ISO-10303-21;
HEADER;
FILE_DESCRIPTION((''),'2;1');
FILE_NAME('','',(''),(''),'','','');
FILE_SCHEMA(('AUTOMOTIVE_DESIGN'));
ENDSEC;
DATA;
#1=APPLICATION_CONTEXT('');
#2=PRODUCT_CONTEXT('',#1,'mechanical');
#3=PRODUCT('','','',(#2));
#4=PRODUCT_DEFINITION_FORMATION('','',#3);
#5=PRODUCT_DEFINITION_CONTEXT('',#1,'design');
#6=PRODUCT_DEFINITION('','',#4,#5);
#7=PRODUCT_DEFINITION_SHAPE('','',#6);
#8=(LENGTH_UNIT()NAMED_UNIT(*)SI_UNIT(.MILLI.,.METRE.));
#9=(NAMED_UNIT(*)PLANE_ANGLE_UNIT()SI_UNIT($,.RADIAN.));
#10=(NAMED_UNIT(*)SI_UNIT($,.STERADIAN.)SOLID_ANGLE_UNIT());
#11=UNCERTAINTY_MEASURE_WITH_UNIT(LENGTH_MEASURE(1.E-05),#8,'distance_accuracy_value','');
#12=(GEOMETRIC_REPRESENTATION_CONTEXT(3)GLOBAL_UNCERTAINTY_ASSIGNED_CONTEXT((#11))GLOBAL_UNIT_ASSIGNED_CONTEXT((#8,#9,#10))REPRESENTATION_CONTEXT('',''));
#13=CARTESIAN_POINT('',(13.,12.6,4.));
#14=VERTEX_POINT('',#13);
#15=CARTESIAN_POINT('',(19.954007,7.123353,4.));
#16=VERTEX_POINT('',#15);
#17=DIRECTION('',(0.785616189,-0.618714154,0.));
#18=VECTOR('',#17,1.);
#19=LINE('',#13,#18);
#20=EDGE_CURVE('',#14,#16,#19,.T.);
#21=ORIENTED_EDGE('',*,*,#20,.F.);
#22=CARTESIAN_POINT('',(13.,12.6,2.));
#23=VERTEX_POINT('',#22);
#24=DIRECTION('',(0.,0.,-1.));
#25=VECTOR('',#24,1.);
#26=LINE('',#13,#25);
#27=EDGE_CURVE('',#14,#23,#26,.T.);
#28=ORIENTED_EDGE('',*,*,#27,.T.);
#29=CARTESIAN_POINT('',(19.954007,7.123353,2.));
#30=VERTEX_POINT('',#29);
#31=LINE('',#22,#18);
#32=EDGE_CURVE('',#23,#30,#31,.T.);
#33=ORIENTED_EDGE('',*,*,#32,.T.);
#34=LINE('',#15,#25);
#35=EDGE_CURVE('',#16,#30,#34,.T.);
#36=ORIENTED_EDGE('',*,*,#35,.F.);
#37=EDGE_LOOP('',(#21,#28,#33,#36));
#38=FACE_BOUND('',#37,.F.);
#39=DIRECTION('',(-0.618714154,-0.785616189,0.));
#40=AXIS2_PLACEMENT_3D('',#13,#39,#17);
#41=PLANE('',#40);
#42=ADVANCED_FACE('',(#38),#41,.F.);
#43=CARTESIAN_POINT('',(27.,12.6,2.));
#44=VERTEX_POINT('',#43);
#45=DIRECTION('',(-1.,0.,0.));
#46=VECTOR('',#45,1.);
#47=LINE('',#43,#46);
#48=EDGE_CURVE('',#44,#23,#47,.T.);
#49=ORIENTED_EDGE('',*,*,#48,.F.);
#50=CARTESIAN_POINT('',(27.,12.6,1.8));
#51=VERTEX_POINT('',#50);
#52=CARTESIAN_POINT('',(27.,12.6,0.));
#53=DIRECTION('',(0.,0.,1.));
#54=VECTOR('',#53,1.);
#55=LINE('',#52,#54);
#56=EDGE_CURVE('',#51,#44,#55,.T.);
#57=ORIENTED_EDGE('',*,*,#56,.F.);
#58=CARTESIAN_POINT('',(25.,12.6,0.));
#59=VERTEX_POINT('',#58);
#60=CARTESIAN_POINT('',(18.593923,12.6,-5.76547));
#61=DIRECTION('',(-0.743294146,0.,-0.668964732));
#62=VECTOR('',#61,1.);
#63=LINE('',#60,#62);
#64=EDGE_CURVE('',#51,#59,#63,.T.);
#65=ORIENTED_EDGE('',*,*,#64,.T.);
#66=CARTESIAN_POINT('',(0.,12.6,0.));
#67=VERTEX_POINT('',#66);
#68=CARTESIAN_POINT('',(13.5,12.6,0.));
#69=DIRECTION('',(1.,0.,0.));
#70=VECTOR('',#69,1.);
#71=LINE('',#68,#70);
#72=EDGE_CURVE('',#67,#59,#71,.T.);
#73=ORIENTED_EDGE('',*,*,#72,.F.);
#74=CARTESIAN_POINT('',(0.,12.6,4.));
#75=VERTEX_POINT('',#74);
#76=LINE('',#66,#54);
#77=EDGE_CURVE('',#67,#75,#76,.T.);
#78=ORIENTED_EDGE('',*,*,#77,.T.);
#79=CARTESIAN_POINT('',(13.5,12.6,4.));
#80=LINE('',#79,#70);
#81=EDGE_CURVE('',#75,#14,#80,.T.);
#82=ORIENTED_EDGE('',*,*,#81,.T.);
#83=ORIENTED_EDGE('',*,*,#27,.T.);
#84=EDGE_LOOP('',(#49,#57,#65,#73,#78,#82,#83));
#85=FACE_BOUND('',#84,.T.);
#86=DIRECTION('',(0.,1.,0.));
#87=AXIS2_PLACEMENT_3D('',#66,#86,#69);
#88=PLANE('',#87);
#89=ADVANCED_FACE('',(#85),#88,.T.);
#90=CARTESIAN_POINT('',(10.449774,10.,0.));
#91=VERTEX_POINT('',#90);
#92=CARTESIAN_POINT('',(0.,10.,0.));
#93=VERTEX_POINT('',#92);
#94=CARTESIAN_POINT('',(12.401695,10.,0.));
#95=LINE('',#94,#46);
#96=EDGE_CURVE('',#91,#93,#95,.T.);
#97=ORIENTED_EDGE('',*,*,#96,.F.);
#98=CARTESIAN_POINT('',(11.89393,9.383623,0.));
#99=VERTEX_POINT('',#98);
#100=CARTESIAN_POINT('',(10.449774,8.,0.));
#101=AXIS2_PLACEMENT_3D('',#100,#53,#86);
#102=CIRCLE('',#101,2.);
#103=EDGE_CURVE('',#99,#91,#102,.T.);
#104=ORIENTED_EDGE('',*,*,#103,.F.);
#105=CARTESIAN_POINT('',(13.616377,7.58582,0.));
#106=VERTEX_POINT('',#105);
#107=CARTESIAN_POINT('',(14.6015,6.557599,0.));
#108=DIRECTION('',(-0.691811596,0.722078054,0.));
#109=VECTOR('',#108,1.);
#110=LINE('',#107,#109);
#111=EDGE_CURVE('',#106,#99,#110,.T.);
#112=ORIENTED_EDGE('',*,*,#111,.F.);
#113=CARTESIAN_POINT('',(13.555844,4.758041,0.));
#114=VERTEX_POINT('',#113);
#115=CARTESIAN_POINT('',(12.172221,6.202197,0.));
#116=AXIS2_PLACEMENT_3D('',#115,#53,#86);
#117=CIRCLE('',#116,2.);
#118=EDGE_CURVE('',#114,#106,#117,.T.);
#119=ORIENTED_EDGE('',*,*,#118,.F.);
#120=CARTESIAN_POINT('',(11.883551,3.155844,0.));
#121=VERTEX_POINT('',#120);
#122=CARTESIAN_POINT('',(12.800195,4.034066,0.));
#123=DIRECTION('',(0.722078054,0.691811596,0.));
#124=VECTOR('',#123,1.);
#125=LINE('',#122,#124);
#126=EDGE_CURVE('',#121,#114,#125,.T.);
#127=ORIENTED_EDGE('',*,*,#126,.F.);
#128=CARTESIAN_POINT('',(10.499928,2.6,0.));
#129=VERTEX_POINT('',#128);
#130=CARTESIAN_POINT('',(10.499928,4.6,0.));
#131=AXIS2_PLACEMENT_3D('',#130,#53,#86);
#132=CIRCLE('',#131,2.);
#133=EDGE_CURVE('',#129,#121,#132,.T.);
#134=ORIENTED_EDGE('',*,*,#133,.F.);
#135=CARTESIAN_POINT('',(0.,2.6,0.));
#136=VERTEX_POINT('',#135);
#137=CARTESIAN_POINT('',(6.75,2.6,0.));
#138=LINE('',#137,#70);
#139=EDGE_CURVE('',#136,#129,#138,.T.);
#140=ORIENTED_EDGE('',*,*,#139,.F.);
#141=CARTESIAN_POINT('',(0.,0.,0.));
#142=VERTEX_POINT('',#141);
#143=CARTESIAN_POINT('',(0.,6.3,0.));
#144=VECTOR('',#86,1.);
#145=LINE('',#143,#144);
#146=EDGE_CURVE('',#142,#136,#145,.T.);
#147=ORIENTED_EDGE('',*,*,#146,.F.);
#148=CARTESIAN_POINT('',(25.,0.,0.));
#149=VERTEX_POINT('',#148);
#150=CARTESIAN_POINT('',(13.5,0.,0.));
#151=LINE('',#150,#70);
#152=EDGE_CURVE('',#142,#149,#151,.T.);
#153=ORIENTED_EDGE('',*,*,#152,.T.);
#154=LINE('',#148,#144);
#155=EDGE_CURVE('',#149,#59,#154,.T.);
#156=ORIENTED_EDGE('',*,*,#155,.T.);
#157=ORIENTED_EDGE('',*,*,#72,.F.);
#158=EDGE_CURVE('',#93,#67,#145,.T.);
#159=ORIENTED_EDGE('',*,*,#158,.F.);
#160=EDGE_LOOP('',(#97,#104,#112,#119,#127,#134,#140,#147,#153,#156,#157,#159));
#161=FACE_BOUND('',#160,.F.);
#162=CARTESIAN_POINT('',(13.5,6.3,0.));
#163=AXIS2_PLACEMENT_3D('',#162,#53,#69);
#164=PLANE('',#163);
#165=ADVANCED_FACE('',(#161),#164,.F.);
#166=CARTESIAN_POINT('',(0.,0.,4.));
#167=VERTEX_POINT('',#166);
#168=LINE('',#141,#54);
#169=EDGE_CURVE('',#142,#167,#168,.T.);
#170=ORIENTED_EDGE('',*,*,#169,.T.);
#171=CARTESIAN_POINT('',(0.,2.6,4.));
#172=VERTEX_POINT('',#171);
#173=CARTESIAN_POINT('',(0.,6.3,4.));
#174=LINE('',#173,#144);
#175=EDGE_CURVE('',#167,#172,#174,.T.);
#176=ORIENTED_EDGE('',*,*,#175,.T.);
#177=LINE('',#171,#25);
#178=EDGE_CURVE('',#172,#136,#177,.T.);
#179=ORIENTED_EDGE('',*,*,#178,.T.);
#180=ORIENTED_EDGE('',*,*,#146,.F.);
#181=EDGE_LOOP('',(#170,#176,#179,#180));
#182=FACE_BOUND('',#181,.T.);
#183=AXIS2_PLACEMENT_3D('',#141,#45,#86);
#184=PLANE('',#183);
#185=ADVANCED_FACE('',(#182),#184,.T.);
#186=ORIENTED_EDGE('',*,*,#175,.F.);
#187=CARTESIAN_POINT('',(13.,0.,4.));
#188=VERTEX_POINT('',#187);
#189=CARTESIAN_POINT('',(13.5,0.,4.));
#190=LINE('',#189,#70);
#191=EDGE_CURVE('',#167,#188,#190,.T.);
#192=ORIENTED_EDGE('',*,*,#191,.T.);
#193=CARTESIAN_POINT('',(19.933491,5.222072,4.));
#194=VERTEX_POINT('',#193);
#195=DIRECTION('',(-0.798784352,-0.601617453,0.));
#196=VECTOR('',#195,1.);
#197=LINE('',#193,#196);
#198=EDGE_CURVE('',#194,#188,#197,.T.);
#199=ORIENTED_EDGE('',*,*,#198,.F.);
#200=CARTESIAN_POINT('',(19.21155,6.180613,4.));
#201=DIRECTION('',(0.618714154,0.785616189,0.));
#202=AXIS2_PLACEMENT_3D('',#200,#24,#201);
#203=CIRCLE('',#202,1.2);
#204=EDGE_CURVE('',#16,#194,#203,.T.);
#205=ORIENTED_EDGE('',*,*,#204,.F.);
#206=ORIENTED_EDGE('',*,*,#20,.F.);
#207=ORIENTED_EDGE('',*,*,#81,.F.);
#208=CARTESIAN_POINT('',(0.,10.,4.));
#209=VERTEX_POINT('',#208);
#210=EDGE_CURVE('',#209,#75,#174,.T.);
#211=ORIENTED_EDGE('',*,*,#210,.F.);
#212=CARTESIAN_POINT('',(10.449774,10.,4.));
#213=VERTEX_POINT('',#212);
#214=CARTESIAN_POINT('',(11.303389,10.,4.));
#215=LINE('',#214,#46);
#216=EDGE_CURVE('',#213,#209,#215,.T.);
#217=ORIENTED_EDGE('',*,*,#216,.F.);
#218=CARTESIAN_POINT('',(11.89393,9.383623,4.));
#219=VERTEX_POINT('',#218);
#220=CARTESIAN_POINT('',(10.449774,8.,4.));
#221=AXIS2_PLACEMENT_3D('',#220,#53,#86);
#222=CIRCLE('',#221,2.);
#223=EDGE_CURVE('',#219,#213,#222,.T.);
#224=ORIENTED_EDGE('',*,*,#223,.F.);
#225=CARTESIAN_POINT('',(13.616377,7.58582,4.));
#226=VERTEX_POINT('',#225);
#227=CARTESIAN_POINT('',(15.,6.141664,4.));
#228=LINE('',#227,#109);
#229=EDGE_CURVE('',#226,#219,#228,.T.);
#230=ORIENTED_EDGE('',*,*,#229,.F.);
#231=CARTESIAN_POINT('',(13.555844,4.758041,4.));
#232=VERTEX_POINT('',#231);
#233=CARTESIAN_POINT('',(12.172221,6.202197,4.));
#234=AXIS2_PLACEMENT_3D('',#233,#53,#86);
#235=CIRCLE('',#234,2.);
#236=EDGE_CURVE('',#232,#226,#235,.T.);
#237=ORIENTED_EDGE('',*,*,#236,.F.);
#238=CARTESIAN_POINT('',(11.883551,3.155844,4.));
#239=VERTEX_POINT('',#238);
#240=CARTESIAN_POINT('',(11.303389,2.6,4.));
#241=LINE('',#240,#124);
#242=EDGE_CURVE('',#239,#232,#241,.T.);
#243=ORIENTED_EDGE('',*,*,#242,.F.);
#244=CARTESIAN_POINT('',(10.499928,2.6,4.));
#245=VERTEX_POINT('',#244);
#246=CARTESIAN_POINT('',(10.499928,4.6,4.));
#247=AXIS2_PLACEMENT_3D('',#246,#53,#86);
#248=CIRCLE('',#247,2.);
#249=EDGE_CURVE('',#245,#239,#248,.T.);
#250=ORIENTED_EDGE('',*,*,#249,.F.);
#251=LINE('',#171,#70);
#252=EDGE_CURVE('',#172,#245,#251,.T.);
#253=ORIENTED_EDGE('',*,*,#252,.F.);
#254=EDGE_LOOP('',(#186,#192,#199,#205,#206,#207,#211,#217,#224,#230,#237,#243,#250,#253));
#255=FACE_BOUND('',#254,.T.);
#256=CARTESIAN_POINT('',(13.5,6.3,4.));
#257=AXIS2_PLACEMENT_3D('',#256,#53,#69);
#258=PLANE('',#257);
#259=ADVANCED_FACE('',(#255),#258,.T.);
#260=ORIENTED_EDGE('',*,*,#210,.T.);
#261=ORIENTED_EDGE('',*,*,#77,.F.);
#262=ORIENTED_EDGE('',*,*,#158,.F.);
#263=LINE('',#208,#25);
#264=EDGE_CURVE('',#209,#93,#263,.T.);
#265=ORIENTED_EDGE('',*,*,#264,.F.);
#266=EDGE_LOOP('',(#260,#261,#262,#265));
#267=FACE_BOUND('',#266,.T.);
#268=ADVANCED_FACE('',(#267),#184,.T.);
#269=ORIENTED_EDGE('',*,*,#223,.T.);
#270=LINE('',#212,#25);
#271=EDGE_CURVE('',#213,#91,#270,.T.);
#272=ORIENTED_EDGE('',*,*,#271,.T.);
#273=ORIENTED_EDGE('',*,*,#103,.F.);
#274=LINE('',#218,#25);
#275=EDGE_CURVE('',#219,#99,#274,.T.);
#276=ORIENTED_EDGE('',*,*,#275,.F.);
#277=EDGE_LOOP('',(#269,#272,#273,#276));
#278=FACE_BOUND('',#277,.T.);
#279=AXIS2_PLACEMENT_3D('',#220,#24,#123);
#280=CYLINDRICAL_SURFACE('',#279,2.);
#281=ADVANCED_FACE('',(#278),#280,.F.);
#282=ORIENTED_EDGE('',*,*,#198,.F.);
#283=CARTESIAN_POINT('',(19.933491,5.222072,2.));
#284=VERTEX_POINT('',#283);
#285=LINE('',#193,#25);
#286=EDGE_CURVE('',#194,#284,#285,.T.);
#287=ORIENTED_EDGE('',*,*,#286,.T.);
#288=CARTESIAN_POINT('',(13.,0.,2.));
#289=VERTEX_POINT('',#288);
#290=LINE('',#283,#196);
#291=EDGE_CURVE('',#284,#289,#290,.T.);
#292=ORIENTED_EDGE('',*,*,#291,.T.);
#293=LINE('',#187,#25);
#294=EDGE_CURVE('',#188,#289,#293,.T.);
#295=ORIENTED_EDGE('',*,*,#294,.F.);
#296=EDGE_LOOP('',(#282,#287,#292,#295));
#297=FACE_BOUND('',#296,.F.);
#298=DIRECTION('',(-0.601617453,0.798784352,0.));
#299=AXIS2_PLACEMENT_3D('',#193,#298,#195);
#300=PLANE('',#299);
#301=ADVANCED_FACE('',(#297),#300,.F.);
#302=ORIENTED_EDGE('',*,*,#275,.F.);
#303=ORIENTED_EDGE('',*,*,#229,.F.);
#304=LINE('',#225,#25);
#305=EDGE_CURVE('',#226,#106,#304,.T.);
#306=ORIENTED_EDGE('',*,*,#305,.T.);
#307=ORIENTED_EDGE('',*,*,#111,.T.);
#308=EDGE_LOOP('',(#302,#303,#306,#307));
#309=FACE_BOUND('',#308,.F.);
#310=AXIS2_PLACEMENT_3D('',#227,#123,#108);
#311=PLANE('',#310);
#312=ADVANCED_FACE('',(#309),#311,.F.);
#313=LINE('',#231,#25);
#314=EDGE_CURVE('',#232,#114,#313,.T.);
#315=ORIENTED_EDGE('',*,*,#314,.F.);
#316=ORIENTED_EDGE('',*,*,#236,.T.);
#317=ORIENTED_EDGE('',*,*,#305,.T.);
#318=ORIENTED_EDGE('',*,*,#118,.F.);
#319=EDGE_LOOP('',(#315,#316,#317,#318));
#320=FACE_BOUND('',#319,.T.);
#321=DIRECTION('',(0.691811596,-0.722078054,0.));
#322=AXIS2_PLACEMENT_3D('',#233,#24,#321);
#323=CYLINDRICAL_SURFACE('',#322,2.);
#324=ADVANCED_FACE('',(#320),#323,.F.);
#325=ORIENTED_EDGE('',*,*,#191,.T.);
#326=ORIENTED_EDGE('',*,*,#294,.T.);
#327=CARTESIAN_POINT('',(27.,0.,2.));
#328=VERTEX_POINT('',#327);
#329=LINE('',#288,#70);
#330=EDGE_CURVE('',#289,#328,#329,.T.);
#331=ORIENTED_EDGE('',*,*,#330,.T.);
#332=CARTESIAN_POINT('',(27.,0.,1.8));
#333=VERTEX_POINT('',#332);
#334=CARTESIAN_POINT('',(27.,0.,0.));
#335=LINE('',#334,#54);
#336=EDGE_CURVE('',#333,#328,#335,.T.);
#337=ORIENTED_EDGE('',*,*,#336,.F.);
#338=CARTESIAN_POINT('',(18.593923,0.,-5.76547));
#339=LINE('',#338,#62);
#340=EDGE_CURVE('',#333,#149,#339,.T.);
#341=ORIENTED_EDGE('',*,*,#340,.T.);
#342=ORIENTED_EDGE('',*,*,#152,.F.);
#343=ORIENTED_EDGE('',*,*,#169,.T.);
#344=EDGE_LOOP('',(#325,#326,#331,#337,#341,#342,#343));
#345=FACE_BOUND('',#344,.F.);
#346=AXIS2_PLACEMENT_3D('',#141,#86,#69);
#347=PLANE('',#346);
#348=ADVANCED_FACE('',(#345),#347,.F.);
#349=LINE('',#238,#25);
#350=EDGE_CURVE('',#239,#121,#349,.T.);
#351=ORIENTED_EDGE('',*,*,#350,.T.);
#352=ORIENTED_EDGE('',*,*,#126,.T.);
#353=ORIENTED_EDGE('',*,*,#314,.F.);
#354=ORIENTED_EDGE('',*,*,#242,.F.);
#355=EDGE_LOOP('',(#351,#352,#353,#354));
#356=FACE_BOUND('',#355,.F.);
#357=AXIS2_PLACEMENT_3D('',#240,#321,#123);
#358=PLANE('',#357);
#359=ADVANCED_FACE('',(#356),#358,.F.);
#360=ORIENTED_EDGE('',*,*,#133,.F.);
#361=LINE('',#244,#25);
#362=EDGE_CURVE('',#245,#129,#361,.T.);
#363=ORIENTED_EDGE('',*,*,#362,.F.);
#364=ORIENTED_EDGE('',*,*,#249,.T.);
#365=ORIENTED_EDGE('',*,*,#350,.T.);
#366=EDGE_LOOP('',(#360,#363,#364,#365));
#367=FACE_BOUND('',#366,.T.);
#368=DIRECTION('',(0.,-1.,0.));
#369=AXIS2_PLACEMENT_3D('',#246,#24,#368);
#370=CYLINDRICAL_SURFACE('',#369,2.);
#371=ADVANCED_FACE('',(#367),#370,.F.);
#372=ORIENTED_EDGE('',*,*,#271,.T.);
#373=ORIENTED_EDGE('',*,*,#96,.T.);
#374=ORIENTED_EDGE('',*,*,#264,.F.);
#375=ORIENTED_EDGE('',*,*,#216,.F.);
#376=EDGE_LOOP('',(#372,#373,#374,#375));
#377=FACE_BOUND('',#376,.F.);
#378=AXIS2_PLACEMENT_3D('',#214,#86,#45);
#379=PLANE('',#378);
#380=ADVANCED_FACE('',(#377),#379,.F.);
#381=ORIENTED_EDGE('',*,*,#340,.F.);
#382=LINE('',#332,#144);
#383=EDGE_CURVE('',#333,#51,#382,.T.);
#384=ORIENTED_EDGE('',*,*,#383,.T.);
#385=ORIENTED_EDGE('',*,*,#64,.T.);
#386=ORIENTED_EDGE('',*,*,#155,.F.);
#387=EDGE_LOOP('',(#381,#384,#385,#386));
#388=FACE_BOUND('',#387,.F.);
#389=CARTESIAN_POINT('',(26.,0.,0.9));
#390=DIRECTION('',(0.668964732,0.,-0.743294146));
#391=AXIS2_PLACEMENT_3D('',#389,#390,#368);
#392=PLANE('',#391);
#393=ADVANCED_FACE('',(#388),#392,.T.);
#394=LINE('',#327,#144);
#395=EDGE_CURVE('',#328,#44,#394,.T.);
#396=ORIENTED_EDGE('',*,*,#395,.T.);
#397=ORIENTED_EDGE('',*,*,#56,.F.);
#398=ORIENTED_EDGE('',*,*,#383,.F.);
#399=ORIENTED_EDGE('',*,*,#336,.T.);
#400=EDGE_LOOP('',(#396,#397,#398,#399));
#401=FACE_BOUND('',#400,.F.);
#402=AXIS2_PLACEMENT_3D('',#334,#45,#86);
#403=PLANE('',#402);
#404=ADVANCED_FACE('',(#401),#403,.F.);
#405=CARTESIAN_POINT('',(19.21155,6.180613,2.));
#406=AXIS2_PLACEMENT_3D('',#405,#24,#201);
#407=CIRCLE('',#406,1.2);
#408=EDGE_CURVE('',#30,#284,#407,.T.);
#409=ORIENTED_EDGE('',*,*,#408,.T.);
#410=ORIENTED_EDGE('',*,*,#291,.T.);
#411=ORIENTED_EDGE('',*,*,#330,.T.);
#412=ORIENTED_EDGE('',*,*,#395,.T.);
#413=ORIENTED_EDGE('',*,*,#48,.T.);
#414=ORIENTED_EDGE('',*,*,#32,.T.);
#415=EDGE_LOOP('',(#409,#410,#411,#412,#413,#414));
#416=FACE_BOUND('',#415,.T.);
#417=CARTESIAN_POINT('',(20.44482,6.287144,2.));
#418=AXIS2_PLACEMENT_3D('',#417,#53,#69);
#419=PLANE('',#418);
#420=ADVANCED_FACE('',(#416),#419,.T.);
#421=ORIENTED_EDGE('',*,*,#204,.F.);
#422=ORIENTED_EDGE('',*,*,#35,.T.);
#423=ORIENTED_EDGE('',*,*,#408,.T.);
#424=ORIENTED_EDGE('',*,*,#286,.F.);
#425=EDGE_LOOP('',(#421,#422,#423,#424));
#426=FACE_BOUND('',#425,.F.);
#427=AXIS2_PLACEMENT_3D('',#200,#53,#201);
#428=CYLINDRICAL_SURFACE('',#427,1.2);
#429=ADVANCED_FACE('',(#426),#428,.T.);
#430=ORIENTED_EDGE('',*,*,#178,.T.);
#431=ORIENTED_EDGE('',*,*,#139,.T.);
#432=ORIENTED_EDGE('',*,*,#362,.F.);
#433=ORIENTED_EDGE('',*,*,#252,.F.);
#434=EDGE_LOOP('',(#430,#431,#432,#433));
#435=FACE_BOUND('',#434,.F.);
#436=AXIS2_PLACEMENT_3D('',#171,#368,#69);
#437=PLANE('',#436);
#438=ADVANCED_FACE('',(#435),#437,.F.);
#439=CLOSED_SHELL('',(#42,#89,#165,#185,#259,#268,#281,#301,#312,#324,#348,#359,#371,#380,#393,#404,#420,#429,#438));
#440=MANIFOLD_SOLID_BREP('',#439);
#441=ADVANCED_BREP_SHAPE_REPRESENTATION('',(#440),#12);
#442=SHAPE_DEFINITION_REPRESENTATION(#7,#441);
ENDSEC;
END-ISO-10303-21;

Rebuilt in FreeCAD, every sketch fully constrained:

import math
import FreeCAD as App
import Part
import Sketcher

V = App.Vector


def edges_at(feature, points):
    """Names of the edges that pass closest to the given points."""
    edges = feature.Shape.Edges
    near = lambda p: min(range(len(edges)), key=lambda i: edges[i].distToShape(Part.Vertex(*p))[0])
    return sorted({f"Edge{near(p) + 1}" for p in points})


def add_polygon(sketch, points):
    """Adds a closed chain of lines whose ends are joined by coincident constraints."""
    first, n = sketch.GeometryCount, len(points)
    for a, b in zip(points, points[1:] + points[:1]):
        sketch.addGeometry(Part.LineSegment(App.Vector(*a, 0), App.Vector(*b, 0)), False)
    for i in range(n):
        sketch.addConstraint(Sketcher.Constraint("Coincident", first + i, 2, first + (i + 1) % n, 1))

doc = App.newDocument("Part")
body = doc.addObject("PartDesign::Body", "Body")

sketch1 = body.newObject("Sketcher::SketchObject", "Sketch")
sketch1.AttachmentSupport = (doc.getObject("XY_Plane"), [""])
sketch1.MapMode = "FlatFace"
add_polygon(sketch1, [(0, 13), (0, 0), (27, 0), (27, 13)])
sketch1.addConstraint(Sketcher.Constraint("Vertical", 0))
sketch1.addConstraint(Sketcher.Constraint("Horizontal", 1))
sketch1.addConstraint(Sketcher.Constraint("Vertical", 2))
sketch1.addConstraint(Sketcher.Constraint("Horizontal", 3))
sketch1.addConstraint(Sketcher.Constraint("Coincident", 0, 2, -1, 1))
sketch1.addConstraint(Sketcher.Constraint("DistanceX", 1, 1, 1, 2, 27.0))
sketch1.addConstraint(Sketcher.Constraint("DistanceY", 0, 2, 0, 1, 12.6))
pad1 = body.newObject("PartDesign::Pad", "Pad")
pad1.Profile = sketch1
pad1.Length = 4

sketch2 = body.newObject("Sketcher::SketchObject", "Sketch001")
sketch2.AttachmentSupport = (doc.getObject("XY_Plane"), [""])
sketch2.MapMode = "FlatFace"
sketch2.AttachmentOffset = App.Placement(V(0, 0, 4), App.Rotation())
add_polygon(sketch2, [(11, 10), (0, 10), (0, 3), (11, 3), (15, 6)])
sketch2.addConstraint(Sketcher.Constraint("Horizontal", 0))
sketch2.addConstraint(Sketcher.Constraint("Vertical", 1))
sketch2.addConstraint(Sketcher.Constraint("Horizontal", 2))
sketch2.addConstraint(Sketcher.Constraint("PointOnObject", 0, 2, -2))
sketch2.addConstraint(Sketcher.Constraint("Perpendicular", 3, 4))
sketch2.addConstraint(Sketcher.Constraint("Vertical", 2, 2, 4, 2))
sketch2.addConstraint(Sketcher.Constraint("DistanceY", 1, 2, 1, 1, 7.4))
sketch2.addConstraint(Sketcher.Constraint("DistanceY", -1, 1, 0, 2, 10.0))
sketch2.addConstraint(Sketcher.Constraint("DistanceX", -1, 1, 3, 2, 15.0))
sketch2.addConstraint(Sketcher.Constraint("DistanceX", 0, 2, 0, 1, 11.303389))
pocket1 = body.newObject("PartDesign::Pocket", "Pocket")
pocket1.Profile = sketch2
pocket1.Length = 25
doc.recompute()

fillet = body.newObject("PartDesign::Fillet", "Fillet")
fillet.Base = (pocket1, edges_at(pocket1, [(11.303, 10, 2), (15, 6.142, 2), (11.303, 2.6, 2)]))
fillet.Radius = 2

sketch3 = body.newObject("Sketcher::SketchObject", "Sketch002")
sketch3.AttachmentSupport = (doc.getObject("XY_Plane"), [""])
sketch3.MapMode = "FlatFace"
sketch3.AttachmentOffset = App.Placement(V(0, 0, 4), App.Rotation())
sketch3.addGeometry(Part.LineSegment(V(27, 12.6, 0), V(13, 12.6, 0)), False)
sketch3.addGeometry(Part.LineSegment(V(13, 12.6, 0), V(20, 7.1, 0)), False)
sketch3.addGeometry(Part.ArcOfCircle(Part.Circle(V(19.2, 6.2, 0), V(0, 0, 1), 1.2), math.radians(-53), math.radians(52)), False)
sketch3.addGeometry(Part.LineSegment(V(19.9, 5.2, 0), V(13, 0, 0)), False)
sketch3.addGeometry(Part.LineSegment(V(13, 0, 0), V(27, 0, 0)), False)
sketch3.addGeometry(Part.LineSegment(V(27, 0, 0), V(27, 12.6, 0)), False)
sketch3.addConstraint(Sketcher.Constraint("Coincident", 0, 2, 1, 1))
sketch3.addConstraint(Sketcher.Constraint("Tangent", 1, 2, 2, 2))
sketch3.addConstraint(Sketcher.Constraint("Tangent", 2, 1, 3, 1))
sketch3.addConstraint(Sketcher.Constraint("Coincident", 3, 2, 4, 1))
sketch3.addConstraint(Sketcher.Constraint("Coincident", 4, 2, 5, 1))
sketch3.addConstraint(Sketcher.Constraint("Coincident", 5, 2, 0, 1))
sketch3.addConstraint(Sketcher.Constraint("Horizontal", 0))
sketch3.addConstraint(Sketcher.Constraint("Horizontal", 4))
sketch3.addConstraint(Sketcher.Constraint("Vertical", 5))
sketch3.addConstraint(Sketcher.Constraint("PointOnObject", 3, 2, -1))
sketch3.addConstraint(Sketcher.Constraint("Vertical", 0, 2, 3, 2))
sketch3.addConstraint(Sketcher.Constraint("Radius", 2, 1.2))
sketch3.addConstraint(Sketcher.Constraint("DistanceX", 0, 2, 0, 1, 14.0))
sketch3.addConstraint(Sketcher.Constraint("DistanceY", 5, 1, 5, 2, 12.6))
sketch3.addConstraint(Sketcher.Constraint("DistanceX", -1, 1, 0, 2, 13.0))
sketch3.addConstraint(Sketcher.Constraint("Distance", 1, 8.85166))
sketch3.addConstraint(Sketcher.Constraint("DistanceX", -1, 1, 2, 3, 19.21155))
pocket2 = body.newObject("PartDesign::Pocket", "Pocket001")
pocket2.Profile = sketch3
pocket2.Length = 2
doc.recompute()

chamfer = body.newObject("PartDesign::Chamfer", "Chamfer")
chamfer.Base = (pocket2, edges_at(pocket2, [(27, 6.3, 0)]))
chamfer.ChamferType = "Two distances"
chamfer.Size = 1.8
chamfer.Size2 = 2
chamfer.FlipDirection = True

doc.recompute()
